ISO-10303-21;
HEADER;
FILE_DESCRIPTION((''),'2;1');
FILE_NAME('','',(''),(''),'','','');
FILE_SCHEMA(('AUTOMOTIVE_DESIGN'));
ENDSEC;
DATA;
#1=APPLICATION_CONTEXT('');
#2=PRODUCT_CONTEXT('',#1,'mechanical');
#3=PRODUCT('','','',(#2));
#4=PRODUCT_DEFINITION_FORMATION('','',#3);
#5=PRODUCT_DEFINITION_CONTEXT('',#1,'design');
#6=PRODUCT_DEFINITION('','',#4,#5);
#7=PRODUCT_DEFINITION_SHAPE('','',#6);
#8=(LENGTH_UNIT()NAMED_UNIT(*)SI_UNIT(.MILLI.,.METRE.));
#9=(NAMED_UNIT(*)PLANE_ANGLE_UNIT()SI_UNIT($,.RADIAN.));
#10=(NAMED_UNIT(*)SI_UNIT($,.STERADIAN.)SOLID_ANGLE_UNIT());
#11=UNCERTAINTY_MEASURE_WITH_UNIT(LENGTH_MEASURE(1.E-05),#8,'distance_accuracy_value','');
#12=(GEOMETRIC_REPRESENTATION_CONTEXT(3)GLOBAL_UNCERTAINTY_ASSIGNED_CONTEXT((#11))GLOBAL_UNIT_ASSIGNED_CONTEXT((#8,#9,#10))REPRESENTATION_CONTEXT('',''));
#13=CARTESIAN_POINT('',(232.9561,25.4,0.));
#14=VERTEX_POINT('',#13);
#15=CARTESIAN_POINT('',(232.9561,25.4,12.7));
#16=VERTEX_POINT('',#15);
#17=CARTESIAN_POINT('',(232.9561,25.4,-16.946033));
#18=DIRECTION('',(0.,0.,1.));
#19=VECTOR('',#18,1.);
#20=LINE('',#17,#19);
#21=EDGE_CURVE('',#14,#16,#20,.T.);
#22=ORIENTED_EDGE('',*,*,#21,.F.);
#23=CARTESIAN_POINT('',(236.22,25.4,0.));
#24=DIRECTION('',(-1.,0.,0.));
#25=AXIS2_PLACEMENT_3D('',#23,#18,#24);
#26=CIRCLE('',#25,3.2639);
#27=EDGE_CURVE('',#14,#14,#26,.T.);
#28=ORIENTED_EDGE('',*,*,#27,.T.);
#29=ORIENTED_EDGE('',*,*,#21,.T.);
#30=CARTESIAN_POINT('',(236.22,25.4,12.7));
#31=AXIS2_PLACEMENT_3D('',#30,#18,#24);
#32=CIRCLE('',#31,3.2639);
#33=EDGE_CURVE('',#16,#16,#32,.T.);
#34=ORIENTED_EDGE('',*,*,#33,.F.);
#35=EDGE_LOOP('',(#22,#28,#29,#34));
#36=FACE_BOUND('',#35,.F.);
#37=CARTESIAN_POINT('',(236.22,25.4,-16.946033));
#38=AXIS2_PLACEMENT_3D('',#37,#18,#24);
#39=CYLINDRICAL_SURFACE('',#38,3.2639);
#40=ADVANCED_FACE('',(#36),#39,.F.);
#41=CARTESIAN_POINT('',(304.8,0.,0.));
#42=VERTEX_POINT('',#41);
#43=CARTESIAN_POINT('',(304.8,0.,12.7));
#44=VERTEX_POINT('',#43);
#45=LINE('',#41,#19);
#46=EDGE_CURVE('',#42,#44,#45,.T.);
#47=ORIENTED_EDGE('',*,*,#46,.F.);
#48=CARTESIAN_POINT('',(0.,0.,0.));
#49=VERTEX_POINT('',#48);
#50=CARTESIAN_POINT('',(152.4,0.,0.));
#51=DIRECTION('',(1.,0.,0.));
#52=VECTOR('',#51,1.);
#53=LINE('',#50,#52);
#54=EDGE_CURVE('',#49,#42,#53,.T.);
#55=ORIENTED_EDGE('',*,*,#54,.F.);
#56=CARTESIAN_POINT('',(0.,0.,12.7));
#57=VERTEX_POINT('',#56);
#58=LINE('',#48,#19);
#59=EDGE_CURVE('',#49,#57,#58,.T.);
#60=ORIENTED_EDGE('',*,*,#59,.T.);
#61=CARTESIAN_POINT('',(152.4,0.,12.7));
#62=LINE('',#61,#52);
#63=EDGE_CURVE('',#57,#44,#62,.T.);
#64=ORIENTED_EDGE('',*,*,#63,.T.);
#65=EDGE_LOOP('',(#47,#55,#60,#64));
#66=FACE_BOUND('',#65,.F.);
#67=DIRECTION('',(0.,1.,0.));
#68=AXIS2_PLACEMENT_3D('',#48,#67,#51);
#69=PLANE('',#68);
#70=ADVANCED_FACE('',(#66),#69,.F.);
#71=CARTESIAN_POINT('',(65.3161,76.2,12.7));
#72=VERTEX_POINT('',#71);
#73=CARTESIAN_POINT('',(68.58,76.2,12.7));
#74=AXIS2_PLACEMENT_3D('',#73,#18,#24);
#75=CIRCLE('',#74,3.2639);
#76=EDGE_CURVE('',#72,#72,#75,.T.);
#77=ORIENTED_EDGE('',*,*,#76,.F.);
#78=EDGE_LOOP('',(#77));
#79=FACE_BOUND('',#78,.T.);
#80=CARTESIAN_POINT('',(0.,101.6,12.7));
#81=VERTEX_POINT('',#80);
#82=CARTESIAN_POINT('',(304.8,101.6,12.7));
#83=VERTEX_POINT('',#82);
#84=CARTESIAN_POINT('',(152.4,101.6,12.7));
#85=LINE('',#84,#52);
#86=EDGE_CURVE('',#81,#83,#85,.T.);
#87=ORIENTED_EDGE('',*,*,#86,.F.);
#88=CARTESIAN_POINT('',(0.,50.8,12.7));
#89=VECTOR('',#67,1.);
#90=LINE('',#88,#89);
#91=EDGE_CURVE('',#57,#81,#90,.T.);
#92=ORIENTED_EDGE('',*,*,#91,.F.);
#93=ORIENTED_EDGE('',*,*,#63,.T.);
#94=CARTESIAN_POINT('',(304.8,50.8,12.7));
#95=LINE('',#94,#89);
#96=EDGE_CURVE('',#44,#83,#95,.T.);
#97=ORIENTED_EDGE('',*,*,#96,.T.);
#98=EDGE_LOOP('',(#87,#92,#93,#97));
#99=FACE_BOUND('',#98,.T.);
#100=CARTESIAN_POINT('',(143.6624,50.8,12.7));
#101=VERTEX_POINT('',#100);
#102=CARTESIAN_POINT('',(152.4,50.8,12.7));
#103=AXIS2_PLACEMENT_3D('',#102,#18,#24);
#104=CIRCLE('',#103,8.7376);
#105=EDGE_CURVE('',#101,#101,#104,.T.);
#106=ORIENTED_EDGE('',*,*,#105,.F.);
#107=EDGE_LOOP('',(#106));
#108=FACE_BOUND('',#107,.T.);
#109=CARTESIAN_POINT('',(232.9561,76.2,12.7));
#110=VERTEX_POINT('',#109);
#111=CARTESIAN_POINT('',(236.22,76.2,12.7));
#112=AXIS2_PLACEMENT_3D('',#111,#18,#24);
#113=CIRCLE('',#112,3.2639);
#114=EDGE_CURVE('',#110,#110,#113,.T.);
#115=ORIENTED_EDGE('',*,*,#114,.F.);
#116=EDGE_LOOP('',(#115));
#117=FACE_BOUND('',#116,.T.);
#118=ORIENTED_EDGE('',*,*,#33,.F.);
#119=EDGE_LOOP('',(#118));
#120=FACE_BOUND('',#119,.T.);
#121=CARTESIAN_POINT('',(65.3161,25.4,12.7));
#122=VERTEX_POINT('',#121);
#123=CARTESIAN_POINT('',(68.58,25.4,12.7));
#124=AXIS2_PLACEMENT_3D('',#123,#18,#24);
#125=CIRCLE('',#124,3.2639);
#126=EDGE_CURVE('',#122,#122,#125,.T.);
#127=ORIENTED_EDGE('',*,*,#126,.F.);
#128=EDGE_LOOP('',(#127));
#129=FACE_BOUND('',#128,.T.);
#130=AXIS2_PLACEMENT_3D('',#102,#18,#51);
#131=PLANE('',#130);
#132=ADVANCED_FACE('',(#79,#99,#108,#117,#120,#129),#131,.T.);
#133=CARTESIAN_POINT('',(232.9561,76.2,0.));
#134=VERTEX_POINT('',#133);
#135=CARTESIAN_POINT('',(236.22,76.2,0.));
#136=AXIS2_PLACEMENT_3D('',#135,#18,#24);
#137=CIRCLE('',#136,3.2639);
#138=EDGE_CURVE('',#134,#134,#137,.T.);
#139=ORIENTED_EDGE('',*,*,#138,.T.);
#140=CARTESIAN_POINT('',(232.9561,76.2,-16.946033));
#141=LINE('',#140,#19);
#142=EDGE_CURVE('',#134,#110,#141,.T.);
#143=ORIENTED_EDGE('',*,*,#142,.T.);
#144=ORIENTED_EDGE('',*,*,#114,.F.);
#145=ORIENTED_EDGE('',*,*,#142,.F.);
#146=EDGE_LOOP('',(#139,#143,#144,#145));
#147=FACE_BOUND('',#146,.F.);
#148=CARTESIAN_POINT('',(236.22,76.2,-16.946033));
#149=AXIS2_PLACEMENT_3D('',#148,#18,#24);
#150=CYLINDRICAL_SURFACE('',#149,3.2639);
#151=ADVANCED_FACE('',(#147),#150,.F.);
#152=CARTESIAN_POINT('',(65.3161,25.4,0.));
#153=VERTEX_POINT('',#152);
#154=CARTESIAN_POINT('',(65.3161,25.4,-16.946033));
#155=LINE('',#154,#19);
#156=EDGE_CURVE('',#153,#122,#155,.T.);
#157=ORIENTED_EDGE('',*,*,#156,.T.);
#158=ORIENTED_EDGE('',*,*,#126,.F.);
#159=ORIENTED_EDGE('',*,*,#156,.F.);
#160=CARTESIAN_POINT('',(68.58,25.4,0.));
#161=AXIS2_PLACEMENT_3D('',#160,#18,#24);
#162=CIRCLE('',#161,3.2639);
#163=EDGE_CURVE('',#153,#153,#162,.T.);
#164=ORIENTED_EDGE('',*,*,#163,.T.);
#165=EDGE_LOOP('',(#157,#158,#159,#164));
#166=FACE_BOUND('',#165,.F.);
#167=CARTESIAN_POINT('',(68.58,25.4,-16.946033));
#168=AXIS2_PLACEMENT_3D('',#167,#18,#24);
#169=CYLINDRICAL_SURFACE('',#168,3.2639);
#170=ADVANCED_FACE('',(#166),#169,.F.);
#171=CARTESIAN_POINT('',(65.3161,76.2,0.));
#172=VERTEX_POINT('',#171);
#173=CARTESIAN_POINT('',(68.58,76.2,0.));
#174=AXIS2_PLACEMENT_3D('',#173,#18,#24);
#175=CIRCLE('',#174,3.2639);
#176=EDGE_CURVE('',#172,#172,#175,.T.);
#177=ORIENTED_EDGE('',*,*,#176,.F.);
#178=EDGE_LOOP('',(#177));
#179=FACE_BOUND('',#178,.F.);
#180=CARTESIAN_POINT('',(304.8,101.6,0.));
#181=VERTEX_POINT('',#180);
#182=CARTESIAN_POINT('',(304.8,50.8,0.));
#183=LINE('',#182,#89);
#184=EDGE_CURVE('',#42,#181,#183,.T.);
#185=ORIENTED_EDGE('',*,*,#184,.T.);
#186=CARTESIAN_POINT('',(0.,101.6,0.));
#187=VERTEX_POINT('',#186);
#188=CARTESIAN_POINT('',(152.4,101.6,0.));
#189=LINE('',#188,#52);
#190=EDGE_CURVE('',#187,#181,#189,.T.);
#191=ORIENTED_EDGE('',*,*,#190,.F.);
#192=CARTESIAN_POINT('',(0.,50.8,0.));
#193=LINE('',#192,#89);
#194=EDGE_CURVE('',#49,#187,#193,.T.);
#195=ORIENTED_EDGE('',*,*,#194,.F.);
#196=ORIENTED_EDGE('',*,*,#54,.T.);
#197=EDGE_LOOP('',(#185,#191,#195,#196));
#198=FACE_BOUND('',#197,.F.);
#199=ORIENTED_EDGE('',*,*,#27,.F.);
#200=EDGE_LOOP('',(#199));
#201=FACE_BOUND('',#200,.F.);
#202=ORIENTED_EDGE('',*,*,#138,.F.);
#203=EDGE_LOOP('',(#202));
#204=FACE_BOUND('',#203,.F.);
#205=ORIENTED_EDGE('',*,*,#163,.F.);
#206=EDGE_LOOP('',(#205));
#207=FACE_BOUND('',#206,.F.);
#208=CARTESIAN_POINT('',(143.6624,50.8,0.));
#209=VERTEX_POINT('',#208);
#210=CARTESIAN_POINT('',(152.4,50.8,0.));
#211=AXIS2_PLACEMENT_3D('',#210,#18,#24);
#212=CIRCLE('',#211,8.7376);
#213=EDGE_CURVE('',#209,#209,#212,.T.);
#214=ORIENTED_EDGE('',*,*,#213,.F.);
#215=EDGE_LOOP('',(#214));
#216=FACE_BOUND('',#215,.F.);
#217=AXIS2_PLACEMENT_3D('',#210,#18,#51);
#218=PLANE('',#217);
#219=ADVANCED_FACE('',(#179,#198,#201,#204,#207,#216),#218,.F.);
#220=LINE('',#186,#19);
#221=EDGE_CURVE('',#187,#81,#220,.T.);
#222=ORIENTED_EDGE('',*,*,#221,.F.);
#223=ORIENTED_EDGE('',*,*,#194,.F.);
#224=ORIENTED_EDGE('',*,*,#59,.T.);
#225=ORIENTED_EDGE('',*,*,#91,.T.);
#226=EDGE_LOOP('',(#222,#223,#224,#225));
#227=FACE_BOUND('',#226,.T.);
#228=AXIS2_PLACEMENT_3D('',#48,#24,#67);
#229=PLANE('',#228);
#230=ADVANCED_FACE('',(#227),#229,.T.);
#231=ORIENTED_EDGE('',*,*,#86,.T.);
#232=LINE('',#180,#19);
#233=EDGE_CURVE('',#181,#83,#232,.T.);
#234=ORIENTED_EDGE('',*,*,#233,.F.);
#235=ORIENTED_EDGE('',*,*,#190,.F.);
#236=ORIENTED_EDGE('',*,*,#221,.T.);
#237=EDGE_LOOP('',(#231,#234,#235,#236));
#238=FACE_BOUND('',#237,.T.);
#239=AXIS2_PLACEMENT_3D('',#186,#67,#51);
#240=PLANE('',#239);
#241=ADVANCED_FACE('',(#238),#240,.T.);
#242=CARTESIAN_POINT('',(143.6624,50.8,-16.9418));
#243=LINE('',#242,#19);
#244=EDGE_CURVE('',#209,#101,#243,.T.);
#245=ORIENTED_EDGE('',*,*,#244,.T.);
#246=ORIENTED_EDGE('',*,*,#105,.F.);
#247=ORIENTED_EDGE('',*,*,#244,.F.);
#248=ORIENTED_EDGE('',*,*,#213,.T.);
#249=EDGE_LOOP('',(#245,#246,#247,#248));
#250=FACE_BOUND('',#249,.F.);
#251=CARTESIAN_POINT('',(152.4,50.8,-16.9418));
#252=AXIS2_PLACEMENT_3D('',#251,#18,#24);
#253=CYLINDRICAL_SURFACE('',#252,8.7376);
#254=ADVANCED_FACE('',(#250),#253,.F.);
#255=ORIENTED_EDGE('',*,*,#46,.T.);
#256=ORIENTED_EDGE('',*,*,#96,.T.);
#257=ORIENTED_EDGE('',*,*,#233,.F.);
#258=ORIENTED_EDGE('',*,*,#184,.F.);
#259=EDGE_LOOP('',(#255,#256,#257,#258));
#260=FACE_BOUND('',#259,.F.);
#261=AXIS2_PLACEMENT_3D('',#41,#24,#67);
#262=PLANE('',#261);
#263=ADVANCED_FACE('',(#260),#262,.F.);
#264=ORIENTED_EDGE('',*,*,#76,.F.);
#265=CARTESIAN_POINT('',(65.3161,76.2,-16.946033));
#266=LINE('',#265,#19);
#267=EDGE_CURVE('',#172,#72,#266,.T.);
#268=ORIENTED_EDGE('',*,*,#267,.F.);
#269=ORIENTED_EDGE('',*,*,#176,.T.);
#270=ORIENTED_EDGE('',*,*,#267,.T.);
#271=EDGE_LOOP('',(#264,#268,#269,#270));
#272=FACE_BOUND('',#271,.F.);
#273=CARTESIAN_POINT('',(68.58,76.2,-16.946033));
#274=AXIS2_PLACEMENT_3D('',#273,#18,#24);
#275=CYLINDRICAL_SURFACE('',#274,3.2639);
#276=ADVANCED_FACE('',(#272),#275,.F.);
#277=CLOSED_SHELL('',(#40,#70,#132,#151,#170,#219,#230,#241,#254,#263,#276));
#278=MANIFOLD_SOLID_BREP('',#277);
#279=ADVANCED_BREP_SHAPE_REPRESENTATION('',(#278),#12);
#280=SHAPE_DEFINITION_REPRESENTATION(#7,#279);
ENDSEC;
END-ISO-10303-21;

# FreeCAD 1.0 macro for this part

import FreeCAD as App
import Part
import Sketcher
from FreeCAD import Vector
Q = App.Units.Quantity

doc = App.newDocument("Part")
body = doc.addObject("PartDesign::Body", "Body")

# Sketch on XY plane
sketch1 = body.newObject("Sketcher::SketchObject", "Sketch")
sketch1.AttachmentSupport = (doc.getObject("XY_Plane"), [""])
sketch1.MapMode = "FlatFace"
sketch1.addGeometry([
    Part.LineSegment(Vector(0, 102, 0), Vector(0, 0, 0)),
    Part.LineSegment(Vector(0, 0, 0), Vector(305, 0, 0)),
    Part.LineSegment(Vector(305, 0, 0), Vector(305, 102, 0)),
    Part.LineSegment(Vector(305, 102, 0), Vector(0, 102, 0)),
], False)
sketch1.addConstraint([
    Sketcher.Constraint("Coincident", 0, 2, 1, 1),
    Sketcher.Constraint("Coincident", 1, 2, 2, 1),
    Sketcher.Constraint("Coincident", 2, 2, 3, 1),
    Sketcher.Constraint("Coincident", 3, 2, 0, 1),
    Sketcher.Constraint("Vertical", 0),
    Sketcher.Constraint("Horizontal", 1),
    Sketcher.Constraint("Vertical", 2),
    Sketcher.Constraint("Horizontal", 3),
    Sketcher.Constraint("Coincident", 0, 2, -1, 1),
    Sketcher.Constraint("DistanceX", 1, 1, 1, 2, Q("12 in")),
    Sketcher.Constraint("DistanceY", 0, 2, 0, 1, Q("4 in")),
])
pad1 = body.newObject("PartDesign::Pad", "Pad")
pad1.Profile = sketch1
pad1.Length = Q("0.5 in")

# Sketch on XY plane
sketch2 = body.newObject("Sketcher::SketchObject", "Sketch001")
sketch2.AttachmentSupport = (doc.getObject("XY_Plane"), [""])
sketch2.MapMode = "FlatFace"
sketch2.addGeometry([
    Part.Circle(Vector(68.6, 76.2, 0), Vector(0, 0, 1), 3.3),
    Part.Circle(Vector(68.6, 25.4, 0), Vector(0, 0, 1), 3.3),
    Part.Circle(Vector(236.2, 76.2, 0), Vector(0, 0, 1), 3.3),
    Part.Circle(Vector(236.2, 25.4, 0), Vector(0, 0, 1), 3.3),
], False)
sketch2.addConstraint([
    Sketcher.Constraint("Equal", 0, 1),
    Sketcher.Constraint("Equal", 1, 2),
    Sketcher.Constraint("Equal", 2, 3),
    Sketcher.Constraint("Horizontal", 0, 3, 2, 3),
    Sketcher.Constraint("Horizontal", 1, 3, 3, 3),
    Sketcher.Constraint("Vertical", 0, 3, 1, 3),
    Sketcher.Constraint("Vertical", 2, 3, 3, 3),
    Sketcher.Constraint("Diameter", 0, Q("0.257 in")),
    Sketcher.Constraint("DistanceY", -1, 1, 0, 3, Q("3 in")),
    Sketcher.Constraint("DistanceY", -1, 1, 1, 3, Q("1 in")),
    Sketcher.Constraint("DistanceX", -1, 1, 0, 3, Q("2.7 in")),
    Sketcher.Constraint("DistanceX", -1, 1, 2, 3, Q("9.3 in")),
])
doc.recompute()
hole = body.newObject("PartDesign::Hole", "Hole")
hole.Profile = sketch2
hole.ThreadType = "None"
hole.Diameter = Q("0.257 in")
hole.DepthType = "Dimension"
hole.Depth = 16.946033
hole.DrillPoint = "Angled"
hole.DrillPointAngle = 118
hole.Reversed = True

# Sketch on XY plane
sketch3 = body.newObject("Sketcher::SketchObject", "Sketch002")
sketch3.AttachmentSupport = (doc.getObject("XY_Plane"), [""])
sketch3.MapMode = "FlatFace"
sketch3.addGeometry(Part.Circle(Vector(152, 51, 0), Vector(0, 0, 1), 9), False)
sketch3.addConstraint([
    Sketcher.Constraint("Diameter", 0, Q("0.688 in")),
    Sketcher.Constraint("DistanceX", -1, 1, 0, 3, Q("6 in")),
    Sketcher.Constraint("DistanceY", -1, 1, 0, 3, Q("2 in")),
])
doc.recompute()
hole2 = body.newObject("PartDesign::Hole", "Hole001")
hole2.Profile = sketch3
hole2.ThreadType = "None"
hole2.Diameter = Q("0.688 in")
hole2.DepthType = "Dimension"
hole2.Depth = Q("0.667 in")
hole2.DrillPoint = "Angled"
hole2.DrillPointAngle = 118
hole2.Reversed = True

doc.recompute()
